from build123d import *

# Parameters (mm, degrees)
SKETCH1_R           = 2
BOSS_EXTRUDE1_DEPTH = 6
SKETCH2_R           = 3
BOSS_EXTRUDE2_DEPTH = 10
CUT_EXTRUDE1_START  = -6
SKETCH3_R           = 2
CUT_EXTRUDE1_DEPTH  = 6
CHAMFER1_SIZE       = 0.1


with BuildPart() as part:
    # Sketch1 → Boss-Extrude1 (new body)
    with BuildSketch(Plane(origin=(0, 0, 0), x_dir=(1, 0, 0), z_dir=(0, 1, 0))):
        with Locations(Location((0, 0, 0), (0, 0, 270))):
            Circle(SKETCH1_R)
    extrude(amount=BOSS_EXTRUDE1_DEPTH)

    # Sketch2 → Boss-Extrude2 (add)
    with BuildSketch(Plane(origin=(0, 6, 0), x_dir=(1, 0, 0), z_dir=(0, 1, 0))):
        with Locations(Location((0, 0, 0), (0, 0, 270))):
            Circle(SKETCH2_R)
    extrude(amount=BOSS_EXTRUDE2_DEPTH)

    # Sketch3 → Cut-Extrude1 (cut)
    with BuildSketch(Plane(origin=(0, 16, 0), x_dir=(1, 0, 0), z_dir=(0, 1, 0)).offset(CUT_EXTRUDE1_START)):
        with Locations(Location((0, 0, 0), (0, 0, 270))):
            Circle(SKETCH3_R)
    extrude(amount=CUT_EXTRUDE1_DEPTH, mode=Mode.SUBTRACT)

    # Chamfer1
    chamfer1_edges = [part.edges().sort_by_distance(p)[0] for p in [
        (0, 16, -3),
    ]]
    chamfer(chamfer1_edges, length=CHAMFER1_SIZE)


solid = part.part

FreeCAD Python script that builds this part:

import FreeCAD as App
import Part
import Sketcher
from FreeCAD import Vector


def edges_at(feature, points):
    """Names of the edges that pass closest to the given points."""
    edges = feature.Shape.Edges
    near = lambda p: min(range(len(edges)), key=lambda i: edges[i].distToShape(Part.Vertex(*p))[0])
    return sorted({f"Edge{near(p) + 1}" for p in points})

doc = App.newDocument("Part")
body = doc.addObject("PartDesign::Body", "Body")

# Sketch on XZ plane
sketch1 = body.newObject("Sketcher::SketchObject", "Sketch")
sketch1.AttachmentSupport = (doc.getObject("XZ_Plane"), [""])
sketch1.MapMode = "FlatFace"
sketch1.addGeometry(Part.Circle(Vector(0, 0, 0), Vector(0, 0, 1), 2), False)
sketch1.addConstraint([
    Sketcher.Constraint("Coincident", 0, 3, -1, 1),
    Sketcher.Constraint("Diameter", 0, 4.0),
])
pad1 = body.newObject("PartDesign::Pad", "Pad")
pad1.Profile = sketch1
pad1.Length = 6
pad1.Reversed = True

# Sketch on XZ plane
sketch2 = body.newObject("Sketcher::SketchObject", "Sketch001")
sketch2.AttachmentSupport = (doc.getObject("XZ_Plane"), [""])
sketch2.MapMode = "FlatFace"
sketch2.AttachmentOffset = App.Placement(Vector(0, 0, -6), App.Rotation())
sketch2.addGeometry(Part.Circle(Vector(0, 0, 0), Vector(0, 0, 1), 3), False)
sketch2.addConstraint([
    Sketcher.Constraint("Coincident", 0, 3, -1, 1),
    Sketcher.Constraint("Diameter", 0, 6.0),
])
pad2 = body.newObject("PartDesign::Pad", "Pad001")
pad2.Profile = sketch2
pad2.Length = 10
pad2.Reversed = True

# Sketch on XZ plane
sketch3 = body.newObject("Sketcher::SketchObject", "Sketch002")
sketch3.AttachmentSupport = (doc.getObject("XZ_Plane"), [""])
sketch3.MapMode = "FlatFace"
sketch3.AttachmentOffset = App.Placement(Vector(0, 0, -10), App.Rotation())
sketch3.addGeometry(Part.Circle(Vector(0, 0, 0), Vector(0, 0, 1), 2), False)
sketch3.addConstraint([
    Sketcher.Constraint("Coincident", 0, 3, -1, 1),
    Sketcher.Constraint("Diameter", 0, 4.0),
])
pocket1 = body.newObject("PartDesign::Pocket", "Pocket")
pocket1.Profile = sketch3
pocket1.Length = 6
doc.recompute()

chamfer = body.newObject("PartDesign::Chamfer", "Chamfer")
chamfer.Base = (pocket1, edges_at(pocket1, [(0, 16, -3)]))
chamfer.Size = 0.1

doc.recompute()
